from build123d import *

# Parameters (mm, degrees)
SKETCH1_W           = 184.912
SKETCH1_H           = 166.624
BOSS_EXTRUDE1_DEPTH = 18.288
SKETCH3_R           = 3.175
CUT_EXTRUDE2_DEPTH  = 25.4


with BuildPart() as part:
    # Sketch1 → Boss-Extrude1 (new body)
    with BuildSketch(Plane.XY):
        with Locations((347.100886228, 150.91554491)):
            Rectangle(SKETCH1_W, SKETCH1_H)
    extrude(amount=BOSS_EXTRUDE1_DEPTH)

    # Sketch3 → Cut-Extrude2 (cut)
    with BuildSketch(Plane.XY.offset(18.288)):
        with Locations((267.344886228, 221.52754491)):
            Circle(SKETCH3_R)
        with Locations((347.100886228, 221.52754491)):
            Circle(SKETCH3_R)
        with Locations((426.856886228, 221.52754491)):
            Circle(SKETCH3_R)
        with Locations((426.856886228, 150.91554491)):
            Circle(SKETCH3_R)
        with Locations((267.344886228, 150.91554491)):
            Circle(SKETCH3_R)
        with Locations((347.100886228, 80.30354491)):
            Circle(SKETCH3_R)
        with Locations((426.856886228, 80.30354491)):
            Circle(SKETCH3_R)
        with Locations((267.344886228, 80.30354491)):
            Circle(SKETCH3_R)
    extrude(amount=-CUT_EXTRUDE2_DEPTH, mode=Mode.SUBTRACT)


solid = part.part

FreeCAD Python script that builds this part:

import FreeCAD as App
import Part
import Sketcher
from FreeCAD import Vector
Q = App.Units.Quantity

doc = App.newDocument("Part")
body = doc.addObject("PartDesign::Body", "Body")

# Sketch on XY plane
sketch1 = doc.addObject("Sketcher::SketchObject", "Sketch")
body.addObject(sketch1)
sketch1.AttachmentSupport = (doc.XY_Plane, [""])
sketch1.MapMode = "FlatFace"
sketch1.addGeometry([
    Part.LineSegment(Vector(254.644886, 234.227545, 0), Vector(254.644886, 67.603545, 0)),
    Part.LineSegment(Vector(254.644886, 67.603545, 0), Vector(439.556886, 67.603545, 0)),
    Part.LineSegment(Vector(439.556886, 67.603545, 0), Vector(439.556886, 234.227545, 0)),
    Part.LineSegment(Vector(439.556886, 234.227545, 0), Vector(254.644886, 234.227545, 0)),
], False)
sketch1.addConstraint([
    Sketcher.Constraint("Coincident", 0, 2, 1, 1),
    Sketcher.Constraint("Coincident", 1, 2, 2, 1),
    Sketcher.Constraint("Coincident", 2, 2, 3, 1),
    Sketcher.Constraint("Coincident", 3, 2, 0, 1),
    Sketcher.Constraint("Vertical", 0),
    Sketcher.Constraint("Horizontal", 1),
    Sketcher.Constraint("Vertical", 2),
    Sketcher.Constraint("Horizontal", 3),
    Sketcher.Constraint("DistanceX", 1, 1, 1, 2, Q("7.28 in")),
    Sketcher.Constraint("DistanceY", 0, 2, 0, 1, Q("6.56 in")),
    Sketcher.Constraint("DistanceX", -1, 1, 0, 2, Q("254.644886 mm")),
    Sketcher.Constraint("DistanceY", -1, 1, 0, 2, Q("67.603545 mm")),
])
pad1 = doc.addObject("PartDesign::Pad", "Pad")
body.addObject(pad1)
pad1.Profile = sketch1
pad1.Length = Q("0.72 in")

# Sketch on XY plane
sketch2 = doc.addObject("Sketcher::SketchObject", "Sketch001")
body.addObject(sketch2)
sketch2.AttachmentSupport = (doc.XY_Plane, [""])
sketch2.MapMode = "FlatFace"
sketch2.AttachmentOffset = App.Placement(Vector(0, 0, 0.72 * 25.4), App.Rotation())
sketch2.addGeometry([
    Part.Circle(Vector(267.344886, 221.527545, 0), Vector(0, 0, 1), 3.175),  # 0
    Part.Circle(Vector(347.100886, 221.527545, 0), Vector(0, 0, 1), 3.175),  # 1
    Part.Circle(Vector(426.856886, 221.527545, 0), Vector(0, 0, 1), 3.175),  # 2
    Part.Circle(Vector(426.856886, 150.915545, 0), Vector(0, 0, 1), 3.175),  # 3
    Part.Circle(Vector(267.344886, 150.915545, 0), Vector(0, 0, 1), 3.175),  # 4
    Part.Circle(Vector(347.100886, 80.303545, 0), Vector(0, 0, 1), 3.175),  # 5
    Part.Circle(Vector(426.856886, 80.303545, 0), Vector(0, 0, 1), 3.175),  # 6
    Part.Circle(Vector(267.344886, 80.303545, 0), Vector(0, 0, 1), 3.175),  # 7
], False)
sketch2.addConstraint([
    Sketcher.Constraint("Equal", 0, 1),
    Sketcher.Constraint("Equal", 1, 2),
    Sketcher.Constraint("Equal", 2, 3),
    Sketcher.Constraint("Equal", 3, 4),
    Sketcher.Constraint("Equal", 4, 5),
    Sketcher.Constraint("Equal", 5, 6),
    Sketcher.Constraint("Equal", 6, 7),
    Sketcher.Constraint("Horizontal", 0, 3, 1, 3),
    Sketcher.Constraint("Horizontal", 1, 3, 2, 3),
    Sketcher.Constraint("Horizontal", 3, 3, 4, 3),
    Sketcher.Constraint("Horizontal", 5, 3, 6, 3),
    Sketcher.Constraint("Horizontal", 6, 3, 7, 3),
    Sketcher.Constraint("Vertical", 2, 3, 3, 3),
    Sketcher.Constraint("Vertical", 0, 3, 4, 3),
    Sketcher.Constraint("Vertical", 1, 3, 5, 3),
    Sketcher.Constraint("Vertical", 3, 3, 6, 3),
    Sketcher.Constraint("Vertical", 4, 3, 7, 3),
    Sketcher.Constraint("Diameter", 0, Q("0.25 in")),
    Sketcher.Constraint("DistanceX", 0, 3, 1, 3, Q("3.14 in")),
    Sketcher.Constraint("DistanceX", 1, 3, 2, 3, Q("3.14 in")),
    Sketcher.Constraint("DistanceY", 3, 3, 2, 3, Q("2.78 in")),
    Sketcher.Constraint("DistanceY", 5, 3, 4, 3, Q("2.78 in")),
    Sketcher.Constraint("DistanceX", -1, 1, 0, 3, Q("267.344886 mm")),
    Sketcher.Constraint("DistanceY", -1, 1, 0, 3, Q("221.527545 mm")),
])
pocket1 = doc.addObject("PartDesign::Pocket", "Pocket")
body.addObject(pocket1)
pocket1.Profile = sketch2
pocket1.Length = Q("1 in")

doc.recompute()
